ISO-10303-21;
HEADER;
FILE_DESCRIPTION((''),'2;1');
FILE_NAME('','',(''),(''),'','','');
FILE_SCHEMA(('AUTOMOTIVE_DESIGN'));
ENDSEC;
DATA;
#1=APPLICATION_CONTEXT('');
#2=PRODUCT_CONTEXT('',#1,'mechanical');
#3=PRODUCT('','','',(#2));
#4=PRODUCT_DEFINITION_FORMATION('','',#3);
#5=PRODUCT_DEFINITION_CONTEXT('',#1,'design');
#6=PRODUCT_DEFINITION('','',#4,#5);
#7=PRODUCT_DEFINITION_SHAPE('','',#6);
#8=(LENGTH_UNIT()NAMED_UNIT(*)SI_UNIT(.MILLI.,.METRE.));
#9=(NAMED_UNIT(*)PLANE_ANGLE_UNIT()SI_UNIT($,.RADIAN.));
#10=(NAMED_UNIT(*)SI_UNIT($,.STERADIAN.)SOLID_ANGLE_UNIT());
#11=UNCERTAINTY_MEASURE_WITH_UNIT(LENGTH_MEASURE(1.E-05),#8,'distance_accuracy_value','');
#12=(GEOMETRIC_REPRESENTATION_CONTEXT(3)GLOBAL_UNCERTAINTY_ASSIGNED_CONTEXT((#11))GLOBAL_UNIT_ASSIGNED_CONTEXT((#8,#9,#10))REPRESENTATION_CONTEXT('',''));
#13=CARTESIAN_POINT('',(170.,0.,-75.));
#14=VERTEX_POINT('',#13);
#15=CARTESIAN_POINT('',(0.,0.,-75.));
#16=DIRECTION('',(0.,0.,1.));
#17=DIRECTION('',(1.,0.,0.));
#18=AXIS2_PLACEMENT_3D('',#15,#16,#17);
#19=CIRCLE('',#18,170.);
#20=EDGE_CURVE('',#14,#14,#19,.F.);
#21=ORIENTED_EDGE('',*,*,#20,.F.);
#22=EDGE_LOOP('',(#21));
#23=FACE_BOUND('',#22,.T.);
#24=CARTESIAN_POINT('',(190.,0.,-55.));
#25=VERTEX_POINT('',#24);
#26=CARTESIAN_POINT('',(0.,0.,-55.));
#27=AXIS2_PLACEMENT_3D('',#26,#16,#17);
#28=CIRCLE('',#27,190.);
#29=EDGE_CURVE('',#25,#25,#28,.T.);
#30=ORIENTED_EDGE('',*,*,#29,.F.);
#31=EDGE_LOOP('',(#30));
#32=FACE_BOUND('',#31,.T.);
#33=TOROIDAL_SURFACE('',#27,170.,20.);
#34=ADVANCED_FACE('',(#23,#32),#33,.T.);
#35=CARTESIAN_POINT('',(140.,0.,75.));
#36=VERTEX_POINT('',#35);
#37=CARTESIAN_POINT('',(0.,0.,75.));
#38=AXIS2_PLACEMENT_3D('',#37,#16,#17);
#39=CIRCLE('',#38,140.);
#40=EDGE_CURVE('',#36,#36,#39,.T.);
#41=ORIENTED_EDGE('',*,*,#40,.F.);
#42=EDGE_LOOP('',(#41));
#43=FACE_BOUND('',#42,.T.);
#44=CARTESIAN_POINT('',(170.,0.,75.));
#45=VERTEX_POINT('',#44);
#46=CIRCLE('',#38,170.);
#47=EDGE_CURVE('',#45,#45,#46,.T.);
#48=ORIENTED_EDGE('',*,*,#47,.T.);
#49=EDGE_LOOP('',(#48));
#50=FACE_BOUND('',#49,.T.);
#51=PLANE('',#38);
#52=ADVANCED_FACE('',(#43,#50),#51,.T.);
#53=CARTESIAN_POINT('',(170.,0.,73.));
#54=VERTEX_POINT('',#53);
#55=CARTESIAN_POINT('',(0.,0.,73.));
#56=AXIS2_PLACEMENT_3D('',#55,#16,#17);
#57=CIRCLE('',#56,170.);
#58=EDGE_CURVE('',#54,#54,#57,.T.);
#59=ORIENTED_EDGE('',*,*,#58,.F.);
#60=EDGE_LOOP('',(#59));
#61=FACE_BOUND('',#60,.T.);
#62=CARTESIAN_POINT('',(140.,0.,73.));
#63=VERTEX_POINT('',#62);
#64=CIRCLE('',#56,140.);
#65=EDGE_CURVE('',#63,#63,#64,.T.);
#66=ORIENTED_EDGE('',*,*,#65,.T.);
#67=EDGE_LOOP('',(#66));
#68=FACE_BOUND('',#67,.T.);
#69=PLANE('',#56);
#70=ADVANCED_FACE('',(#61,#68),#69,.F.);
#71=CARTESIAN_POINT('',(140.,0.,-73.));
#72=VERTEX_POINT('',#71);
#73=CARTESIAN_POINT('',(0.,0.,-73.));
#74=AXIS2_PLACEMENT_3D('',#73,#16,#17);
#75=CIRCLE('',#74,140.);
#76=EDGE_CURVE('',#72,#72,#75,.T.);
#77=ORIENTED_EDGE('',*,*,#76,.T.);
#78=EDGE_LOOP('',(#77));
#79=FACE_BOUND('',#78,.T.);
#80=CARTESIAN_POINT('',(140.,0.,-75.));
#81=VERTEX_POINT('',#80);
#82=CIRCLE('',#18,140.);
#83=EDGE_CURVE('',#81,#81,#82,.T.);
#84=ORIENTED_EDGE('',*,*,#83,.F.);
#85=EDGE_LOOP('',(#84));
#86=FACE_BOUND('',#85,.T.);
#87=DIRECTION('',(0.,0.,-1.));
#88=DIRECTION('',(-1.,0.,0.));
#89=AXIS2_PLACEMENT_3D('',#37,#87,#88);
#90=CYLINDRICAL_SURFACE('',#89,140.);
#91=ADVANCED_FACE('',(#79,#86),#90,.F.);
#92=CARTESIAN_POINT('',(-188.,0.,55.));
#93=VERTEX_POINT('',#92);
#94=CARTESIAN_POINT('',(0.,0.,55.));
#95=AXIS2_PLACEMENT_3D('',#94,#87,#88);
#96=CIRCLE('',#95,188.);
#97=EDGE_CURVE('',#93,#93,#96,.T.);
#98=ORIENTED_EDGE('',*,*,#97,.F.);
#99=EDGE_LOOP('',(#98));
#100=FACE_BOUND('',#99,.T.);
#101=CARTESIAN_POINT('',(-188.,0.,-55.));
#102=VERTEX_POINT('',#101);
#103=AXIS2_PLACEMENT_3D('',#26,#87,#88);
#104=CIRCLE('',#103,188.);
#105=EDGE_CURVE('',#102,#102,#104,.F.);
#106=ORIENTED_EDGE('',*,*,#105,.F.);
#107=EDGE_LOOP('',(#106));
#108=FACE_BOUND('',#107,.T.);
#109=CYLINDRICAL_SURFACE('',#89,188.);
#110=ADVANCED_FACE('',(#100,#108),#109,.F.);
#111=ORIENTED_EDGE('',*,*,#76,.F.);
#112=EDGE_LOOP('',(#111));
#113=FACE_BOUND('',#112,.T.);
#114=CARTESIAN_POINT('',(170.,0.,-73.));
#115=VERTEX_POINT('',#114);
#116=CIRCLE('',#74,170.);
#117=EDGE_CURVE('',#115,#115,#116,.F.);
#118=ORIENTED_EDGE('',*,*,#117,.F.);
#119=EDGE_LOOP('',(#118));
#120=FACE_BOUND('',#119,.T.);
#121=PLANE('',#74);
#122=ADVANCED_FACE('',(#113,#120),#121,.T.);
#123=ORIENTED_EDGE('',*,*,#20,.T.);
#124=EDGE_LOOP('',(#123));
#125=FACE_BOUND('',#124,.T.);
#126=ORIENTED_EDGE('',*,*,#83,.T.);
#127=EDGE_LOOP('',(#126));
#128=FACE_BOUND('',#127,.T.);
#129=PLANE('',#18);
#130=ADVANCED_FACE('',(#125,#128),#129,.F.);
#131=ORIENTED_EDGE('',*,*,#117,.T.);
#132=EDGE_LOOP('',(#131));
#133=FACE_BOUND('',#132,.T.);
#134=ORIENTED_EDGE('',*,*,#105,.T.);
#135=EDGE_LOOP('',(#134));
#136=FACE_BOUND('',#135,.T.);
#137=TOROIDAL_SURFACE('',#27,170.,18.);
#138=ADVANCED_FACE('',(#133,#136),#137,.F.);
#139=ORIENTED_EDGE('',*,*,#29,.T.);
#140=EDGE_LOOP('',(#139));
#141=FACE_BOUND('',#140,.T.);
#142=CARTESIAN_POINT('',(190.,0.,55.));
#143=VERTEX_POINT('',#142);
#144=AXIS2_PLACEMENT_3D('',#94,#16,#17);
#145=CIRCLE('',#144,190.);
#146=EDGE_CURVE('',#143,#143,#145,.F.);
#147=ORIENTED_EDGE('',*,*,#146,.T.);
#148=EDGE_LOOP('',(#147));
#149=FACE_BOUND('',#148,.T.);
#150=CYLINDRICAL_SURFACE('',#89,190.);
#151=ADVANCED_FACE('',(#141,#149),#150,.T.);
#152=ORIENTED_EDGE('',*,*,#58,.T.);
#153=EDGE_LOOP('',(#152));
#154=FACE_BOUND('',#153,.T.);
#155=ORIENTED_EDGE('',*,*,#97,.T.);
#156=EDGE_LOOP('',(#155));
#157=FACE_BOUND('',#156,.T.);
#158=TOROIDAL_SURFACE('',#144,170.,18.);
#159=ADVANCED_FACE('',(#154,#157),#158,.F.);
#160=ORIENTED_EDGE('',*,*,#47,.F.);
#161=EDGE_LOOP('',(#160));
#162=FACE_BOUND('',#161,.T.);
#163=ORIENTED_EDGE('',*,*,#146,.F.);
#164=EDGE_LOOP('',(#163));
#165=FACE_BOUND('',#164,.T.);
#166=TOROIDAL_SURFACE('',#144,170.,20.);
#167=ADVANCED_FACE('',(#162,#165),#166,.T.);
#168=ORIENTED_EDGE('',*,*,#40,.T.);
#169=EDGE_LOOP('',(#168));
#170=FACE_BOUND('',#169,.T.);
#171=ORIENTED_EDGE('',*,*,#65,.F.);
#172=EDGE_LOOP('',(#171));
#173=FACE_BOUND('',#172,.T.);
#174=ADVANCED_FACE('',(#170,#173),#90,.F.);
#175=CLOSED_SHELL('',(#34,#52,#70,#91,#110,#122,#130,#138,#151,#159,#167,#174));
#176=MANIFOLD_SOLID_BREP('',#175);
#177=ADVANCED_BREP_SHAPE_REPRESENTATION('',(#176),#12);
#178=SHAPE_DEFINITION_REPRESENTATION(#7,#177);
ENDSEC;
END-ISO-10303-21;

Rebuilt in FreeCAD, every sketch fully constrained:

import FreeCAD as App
import Part
import Sketcher
Q = App.Units.Quantity


def edges_at(feature, points):
    """Names of the edges that pass closest to the given points."""
    edges = feature.Shape.Edges
    near = lambda p: min(range(len(edges)), key=lambda i: edges[i].distToShape(Part.Vertex(*p))[0])
    return sorted({f"Edge{near(p) + 1}" for p in points})


def faces_at(feature, points):
    """Names of the faces that lie closest to the given points."""
    faces = feature.Shape.Faces
    near = lambda p: min(range(len(faces)), key=lambda i: faces[i].distToShape(Part.Vertex(*p))[0])
    return sorted({f"Face{near(p) + 1}" for p in points})

doc = App.newDocument("Part")
body = doc.addObject("PartDesign::Body", "Body")

# Sketch on XY plane
sketch1 = doc.addObject("Sketcher::SketchObject", "Sketch")
body.addObject(sketch1)
sketch1.AttachmentSupport = (doc.XY_Plane, [""])
sketch1.MapMode = "FlatFace"
sketch1.addGeometry([
    Part.Circle(App.Vector(0, 0, 0), App.Vector(0, 0, 1), 190),
    Part.Circle(App.Vector(0, 0, 0), App.Vector(0, 0, 1), 140),
], False)
sketch1.addConstraint([
    Sketcher.Constraint("Coincident", 0, 3, -1, 1),
    Sketcher.Constraint("Coincident", 1, 3, -1, 1),
    Sketcher.Constraint("Diameter", 0, Q("380 mm")),
    Sketcher.Constraint("Diameter", 1, Q("280 mm")),
])
pad1 = doc.addObject("PartDesign::Pad", "Pad")
body.addObject(pad1)
pad1.Profile = sketch1
pad1.Length = 150
pad1.Midplane = True
doc.recompute()

fillet = doc.addObject("PartDesign::Fillet", "Fillet")
body.addObject(fillet)
fillet.Base = (pad1, edges_at(pad1, [(-190, 0, -75), (-190, 0, 75)]))
fillet.Radius = 20
doc.recompute()

thickness = doc.addObject("PartDesign::Thickness", "Thickness")
body.addObject(thickness)
thickness.Base = (fillet, faces_at(fillet, [(-140, 0, 0)]))
thickness.Value = 2
thickness.Reversed = True
thickness.Join = "Intersection"

doc.recompute()
